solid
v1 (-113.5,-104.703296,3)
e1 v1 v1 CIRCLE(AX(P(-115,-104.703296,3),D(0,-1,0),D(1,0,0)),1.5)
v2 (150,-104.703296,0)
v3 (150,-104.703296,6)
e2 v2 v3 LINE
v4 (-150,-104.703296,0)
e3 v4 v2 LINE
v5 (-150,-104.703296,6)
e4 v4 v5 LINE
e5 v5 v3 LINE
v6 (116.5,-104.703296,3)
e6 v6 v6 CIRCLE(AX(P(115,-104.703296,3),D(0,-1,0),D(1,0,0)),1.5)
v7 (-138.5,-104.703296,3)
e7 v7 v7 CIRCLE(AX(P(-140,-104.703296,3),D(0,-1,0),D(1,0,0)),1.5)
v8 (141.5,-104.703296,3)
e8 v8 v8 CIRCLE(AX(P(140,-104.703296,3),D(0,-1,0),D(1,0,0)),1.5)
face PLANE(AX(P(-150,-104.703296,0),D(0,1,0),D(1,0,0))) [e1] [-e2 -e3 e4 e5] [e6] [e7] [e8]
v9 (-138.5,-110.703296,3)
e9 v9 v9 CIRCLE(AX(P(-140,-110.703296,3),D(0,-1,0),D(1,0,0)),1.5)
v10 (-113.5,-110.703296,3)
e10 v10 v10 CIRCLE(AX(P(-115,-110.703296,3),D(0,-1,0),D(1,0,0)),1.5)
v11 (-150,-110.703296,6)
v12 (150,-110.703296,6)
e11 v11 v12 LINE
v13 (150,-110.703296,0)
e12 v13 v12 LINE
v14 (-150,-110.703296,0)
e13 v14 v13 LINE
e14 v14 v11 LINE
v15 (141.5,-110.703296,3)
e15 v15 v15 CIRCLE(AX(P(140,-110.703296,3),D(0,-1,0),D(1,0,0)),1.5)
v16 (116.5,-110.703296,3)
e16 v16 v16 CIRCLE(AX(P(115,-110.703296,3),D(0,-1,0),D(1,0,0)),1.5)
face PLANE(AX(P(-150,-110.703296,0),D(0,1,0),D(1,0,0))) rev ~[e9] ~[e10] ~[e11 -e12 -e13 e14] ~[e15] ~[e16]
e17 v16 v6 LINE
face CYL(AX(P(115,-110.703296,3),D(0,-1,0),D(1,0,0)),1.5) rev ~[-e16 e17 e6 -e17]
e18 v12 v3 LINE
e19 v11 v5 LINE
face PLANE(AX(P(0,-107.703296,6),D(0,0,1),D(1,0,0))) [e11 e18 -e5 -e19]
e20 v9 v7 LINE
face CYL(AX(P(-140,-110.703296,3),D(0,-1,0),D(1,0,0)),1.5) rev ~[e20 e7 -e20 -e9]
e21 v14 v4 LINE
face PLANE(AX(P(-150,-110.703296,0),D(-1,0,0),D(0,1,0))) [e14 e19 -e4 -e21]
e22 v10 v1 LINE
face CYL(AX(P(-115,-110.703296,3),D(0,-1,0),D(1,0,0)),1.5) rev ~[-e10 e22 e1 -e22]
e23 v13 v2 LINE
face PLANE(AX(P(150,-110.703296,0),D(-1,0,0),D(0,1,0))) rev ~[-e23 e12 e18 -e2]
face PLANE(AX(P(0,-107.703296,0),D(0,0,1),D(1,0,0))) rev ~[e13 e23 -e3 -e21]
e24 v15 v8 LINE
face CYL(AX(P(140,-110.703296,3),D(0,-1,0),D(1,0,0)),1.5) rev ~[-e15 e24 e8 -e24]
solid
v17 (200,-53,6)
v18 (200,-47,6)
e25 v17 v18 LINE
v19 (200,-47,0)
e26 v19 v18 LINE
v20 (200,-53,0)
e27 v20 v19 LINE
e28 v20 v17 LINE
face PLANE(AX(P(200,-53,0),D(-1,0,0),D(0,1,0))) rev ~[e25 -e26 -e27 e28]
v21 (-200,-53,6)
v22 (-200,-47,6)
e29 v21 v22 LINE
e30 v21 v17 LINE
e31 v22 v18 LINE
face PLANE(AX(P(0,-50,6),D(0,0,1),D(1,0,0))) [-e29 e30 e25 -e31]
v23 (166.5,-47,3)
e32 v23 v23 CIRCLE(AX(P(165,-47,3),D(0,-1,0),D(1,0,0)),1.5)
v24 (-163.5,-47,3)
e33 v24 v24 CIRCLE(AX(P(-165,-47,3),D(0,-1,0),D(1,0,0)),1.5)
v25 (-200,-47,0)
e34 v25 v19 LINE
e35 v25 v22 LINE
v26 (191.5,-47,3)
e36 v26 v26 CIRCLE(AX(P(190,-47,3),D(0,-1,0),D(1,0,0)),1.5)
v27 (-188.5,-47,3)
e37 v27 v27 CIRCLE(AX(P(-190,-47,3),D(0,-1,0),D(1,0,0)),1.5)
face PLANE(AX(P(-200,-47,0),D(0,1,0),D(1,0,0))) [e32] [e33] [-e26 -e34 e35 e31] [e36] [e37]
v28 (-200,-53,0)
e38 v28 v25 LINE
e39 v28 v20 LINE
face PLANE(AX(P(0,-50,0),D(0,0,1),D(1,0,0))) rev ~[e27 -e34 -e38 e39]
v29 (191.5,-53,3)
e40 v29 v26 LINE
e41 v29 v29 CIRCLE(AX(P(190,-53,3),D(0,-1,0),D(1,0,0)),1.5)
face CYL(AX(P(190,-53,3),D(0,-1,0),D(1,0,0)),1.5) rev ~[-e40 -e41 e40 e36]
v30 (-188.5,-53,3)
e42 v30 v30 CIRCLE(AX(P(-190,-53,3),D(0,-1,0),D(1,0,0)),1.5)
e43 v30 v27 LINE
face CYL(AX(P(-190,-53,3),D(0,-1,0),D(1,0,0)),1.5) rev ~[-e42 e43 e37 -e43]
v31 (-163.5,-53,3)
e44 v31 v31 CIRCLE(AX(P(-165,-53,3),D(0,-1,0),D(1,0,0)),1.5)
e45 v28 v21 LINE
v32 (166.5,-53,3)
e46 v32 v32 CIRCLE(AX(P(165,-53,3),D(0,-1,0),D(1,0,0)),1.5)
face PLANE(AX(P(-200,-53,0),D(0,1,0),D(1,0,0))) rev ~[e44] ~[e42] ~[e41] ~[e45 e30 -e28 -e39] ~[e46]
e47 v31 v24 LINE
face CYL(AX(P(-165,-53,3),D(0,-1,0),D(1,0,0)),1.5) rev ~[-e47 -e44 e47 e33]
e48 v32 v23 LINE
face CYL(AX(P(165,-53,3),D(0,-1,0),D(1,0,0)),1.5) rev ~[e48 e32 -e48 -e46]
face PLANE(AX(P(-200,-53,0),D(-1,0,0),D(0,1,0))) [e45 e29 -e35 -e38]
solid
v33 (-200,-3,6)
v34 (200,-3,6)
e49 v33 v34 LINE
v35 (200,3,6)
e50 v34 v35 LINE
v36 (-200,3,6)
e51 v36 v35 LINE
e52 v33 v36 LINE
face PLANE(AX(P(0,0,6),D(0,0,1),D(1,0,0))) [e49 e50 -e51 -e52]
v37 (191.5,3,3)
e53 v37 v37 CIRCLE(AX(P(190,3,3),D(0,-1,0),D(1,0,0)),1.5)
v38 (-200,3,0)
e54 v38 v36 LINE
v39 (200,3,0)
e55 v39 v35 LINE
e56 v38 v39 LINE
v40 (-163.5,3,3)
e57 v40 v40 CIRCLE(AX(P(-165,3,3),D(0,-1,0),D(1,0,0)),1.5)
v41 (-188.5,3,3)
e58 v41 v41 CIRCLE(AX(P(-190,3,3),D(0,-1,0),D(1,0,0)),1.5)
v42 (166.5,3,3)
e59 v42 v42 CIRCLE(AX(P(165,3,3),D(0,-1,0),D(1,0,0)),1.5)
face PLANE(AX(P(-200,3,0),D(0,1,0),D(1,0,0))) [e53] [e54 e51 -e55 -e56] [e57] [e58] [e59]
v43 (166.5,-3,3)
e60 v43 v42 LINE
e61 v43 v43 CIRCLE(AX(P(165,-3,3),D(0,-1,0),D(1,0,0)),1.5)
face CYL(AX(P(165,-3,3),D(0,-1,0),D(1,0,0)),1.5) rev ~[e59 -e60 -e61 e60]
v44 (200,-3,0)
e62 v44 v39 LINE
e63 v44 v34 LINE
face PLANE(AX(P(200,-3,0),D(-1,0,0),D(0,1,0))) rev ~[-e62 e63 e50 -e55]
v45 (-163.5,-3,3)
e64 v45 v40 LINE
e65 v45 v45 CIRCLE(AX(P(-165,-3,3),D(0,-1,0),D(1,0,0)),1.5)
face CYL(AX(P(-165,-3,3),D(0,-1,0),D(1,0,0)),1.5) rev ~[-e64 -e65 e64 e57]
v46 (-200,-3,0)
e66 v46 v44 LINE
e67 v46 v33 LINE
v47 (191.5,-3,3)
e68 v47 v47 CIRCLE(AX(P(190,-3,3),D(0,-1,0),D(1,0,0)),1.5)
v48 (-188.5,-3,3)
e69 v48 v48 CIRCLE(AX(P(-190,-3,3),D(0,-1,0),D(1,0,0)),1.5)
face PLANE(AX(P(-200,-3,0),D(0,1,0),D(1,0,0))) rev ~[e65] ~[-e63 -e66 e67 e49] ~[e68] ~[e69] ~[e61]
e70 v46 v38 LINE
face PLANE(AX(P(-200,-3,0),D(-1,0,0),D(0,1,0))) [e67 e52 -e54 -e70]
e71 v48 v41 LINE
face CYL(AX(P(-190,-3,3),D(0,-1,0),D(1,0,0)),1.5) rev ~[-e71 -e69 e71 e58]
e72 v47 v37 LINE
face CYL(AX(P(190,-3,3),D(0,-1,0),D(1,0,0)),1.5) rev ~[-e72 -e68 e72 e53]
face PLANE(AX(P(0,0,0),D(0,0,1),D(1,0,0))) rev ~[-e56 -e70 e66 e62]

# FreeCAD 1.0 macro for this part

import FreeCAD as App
import Part
import Sketcher
from FreeCAD import Vector
Q = App.Units.Quantity


def add_polygon(sketch, points):
    """Adds a closed chain of lines whose ends are joined by coincident constraints."""
    first, n = sketch.GeometryCount, len(points)
    for a, b in zip(points, points[1:] + points[:1]):
        sketch.addGeometry(Part.LineSegment(App.Vector(*a, 0), App.Vector(*b, 0)), False)
    for i in range(n):
        sketch.addConstraint(Sketcher.Constraint("Coincident", first + i, 2, first + (i + 1) % n, 1))

doc = App.newDocument("Part")
body = doc.addObject("PartDesign::Body", "Body")

# Sketch on XY plane
sketch1 = doc.addObject("Sketcher::SketchObject", "Sketch")
body.addObject(sketch1)
sketch1.AttachmentSupport = (doc.XY_Plane, [""])
sketch1.MapMode = "FlatFace"
add_polygon(sketch1, [(-200, 3), (-200, -3), (200, -3), (200, 3)])  # lines 0-3
sketch1.addConstraint(Sketcher.Constraint("Vertical", 0))
sketch1.addConstraint(Sketcher.Constraint("Horizontal", 1))
sketch1.addConstraint(Sketcher.Constraint("Vertical", 2))
sketch1.addConstraint(Sketcher.Constraint("Horizontal", 3))
sketch1.addConstraint(Sketcher.Constraint("Symmetric", 0, 2, 2, 2, -1, 1))
sketch1.addConstraint(Sketcher.Constraint("DistanceX", 1, 1, 1, 2, Q("400 mm")))
sketch1.addConstraint(Sketcher.Constraint("DistanceY", 0, 2, 0, 1, Q("6 mm")))
pad1 = doc.addObject("PartDesign::Pad", "Pad")
body.addObject(pad1)
pad1.Profile = sketch1
pad1.Length = 6

# Sketch on XZ plane
sketch2 = doc.addObject("Sketcher::SketchObject", "Sketch001")
body.addObject(sketch2)
sketch2.AttachmentSupport = (doc.XZ_Plane, [""])
sketch2.MapMode = "FlatFace"
sketch2.AttachmentOffset = App.Placement(Vector(0, 0, 3), App.Rotation())
sketch2.addGeometry(Part.Circle(Vector(190, 3, 0), Vector(0, 0, 1), 1.5), False)
sketch2.addGeometry(Part.Circle(Vector(165, 3, 0), Vector(0, 0, 1), 1.5), False)
sketch2.addGeometry(Part.Circle(Vector(-190, 3, 0), Vector(0, 0, 1), 1.5), False)
sketch2.addGeometry(Part.Circle(Vector(-165, 3, 0), Vector(0, 0, 1), 1.5), False)
sketch2.addConstraint(Sketcher.Constraint("Equal", 0, 1))
sketch2.addConstraint(Sketcher.Constraint("Equal", 1, 2))
sketch2.addConstraint(Sketcher.Constraint("Equal", 2, 3))
sketch2.addConstraint(Sketcher.Constraint("Symmetric", 0, 3, 2, 3, -2))
sketch2.addConstraint(Sketcher.Constraint("Symmetric", 1, 3, 3, 3, -2))
sketch2.addConstraint(Sketcher.Constraint("Horizontal", 0, 3, 1, 3))
sketch2.addConstraint(Sketcher.Constraint("Diameter", 0, Q("3 mm")))
sketch2.addConstraint(Sketcher.Constraint("DistanceX", -1, 1, 0, 3, Q("190 mm")))
sketch2.addConstraint(Sketcher.Constraint("DistanceY", -1, 1, 0, 3, Q("3 mm")))
sketch2.addConstraint(Sketcher.Constraint("DistanceX", -1, 1, 1, 3, Q("165 mm")))
pocket1 = doc.addObject("PartDesign::Pocket", "Pocket")
body.addObject(pocket1)
pocket1.Profile = sketch2
pocket1.Type = "ThroughAll"
body2 = doc.addObject("PartDesign::Body", "Body001")

# Sketch on XY plane
sketch3 = doc.addObject("Sketcher::SketchObject", "Sketch002")
body2.addObject(sketch3)
sketch3.AttachmentSupport = (doc.getObject("XY_Plane001"), [""])
sketch3.MapMode = "FlatFace"
add_polygon(sketch3, [(-200, -47), (-200, -53), (200, -53), (200, -47)])  # lines 0-3
sketch3.addConstraint(Sketcher.Constraint("Vertical", 0))
sketch3.addConstraint(Sketcher.Constraint("Horizontal", 1))
sketch3.addConstraint(Sketcher.Constraint("Vertical", 2))
sketch3.addConstraint(Sketcher.Constraint("Horizontal", 3))
sketch3.addConstraint(Sketcher.Constraint("DistanceX", 1, 1, 1, 2, Q("400 mm")))
sketch3.addConstraint(Sketcher.Constraint("DistanceY", 0, 2, 0, 1, Q("6 mm")))
sketch3.addConstraint(Sketcher.Constraint("DistanceX", 0, 2, -1, 1, Q("200 mm")))
sketch3.addConstraint(Sketcher.Constraint("DistanceY", 0, 2, -1, 1, Q("53 mm")))
pad2 = doc.addObject("PartDesign::Pad", "Pad001")
body2.addObject(pad2)
pad2.Profile = sketch3
pad2.Length = 6

# Sketch on XZ plane
sketch4 = doc.addObject("Sketcher::SketchObject", "Sketch003")
body2.addObject(sketch4)
sketch4.AttachmentSupport = (doc.getObject("XZ_Plane001"), [""])
sketch4.MapMode = "FlatFace"
sketch4.AttachmentOffset = App.Placement(Vector(0, 0, 53), App.Rotation())
sketch4.addGeometry(Part.Circle(Vector(190, 3, 0), Vector(0, 0, 1), 1.5), False)
sketch4.addGeometry(Part.Circle(Vector(165, 3, 0), Vector(0, 0, 1), 1.5), False)
sketch4.addGeometry(Part.Circle(Vector(-190, 3, 0), Vector(0, 0, 1), 1.5), False)
sketch4.addGeometry(Part.Circle(Vector(-165, 3, 0), Vector(0, 0, 1), 1.5), False)
sketch4.addConstraint(Sketcher.Constraint("Equal", 0, 1))
sketch4.addConstraint(Sketcher.Constraint("Equal", 1, 2))
sketch4.addConstraint(Sketcher.Constraint("Equal", 2, 3))
sketch4.addConstraint(Sketcher.Constraint("Symmetric", 0, 3, 2, 3, -2))
sketch4.addConstraint(Sketcher.Constraint("Symmetric", 1, 3, 3, 3, -2))
sketch4.addConstraint(Sketcher.Constraint("Horizontal", 0, 3, 1, 3))
sketch4.addConstraint(Sketcher.Constraint("Diameter", 0, Q("3 mm")))
sketch4.addConstraint(Sketcher.Constraint("DistanceX", -1, 1, 0, 3, Q("190 mm")))
sketch4.addConstraint(Sketcher.Constraint("DistanceY", -1, 1, 0, 3, Q("3 mm")))
sketch4.addConstraint(Sketcher.Constraint("DistanceX", -1, 1, 1, 3, Q("165 mm")))
pocket2 = doc.addObject("PartDesign::Pocket", "Pocket001")
body2.addObject(pocket2)
pocket2.Profile = sketch4
pocket2.Type = "ThroughAll"
body3 = doc.addObject("PartDesign::Body", "Body002")

# Sketch on XY plane
sketch5 = doc.addObject("Sketcher::SketchObject", "Sketch004")
body3.addObject(sketch5)
sketch5.AttachmentSupport = (doc.getObject("XY_Plane002"), [""])
sketch5.MapMode = "FlatFace"
add_polygon(sketch5, [(-150, -104.703296), (-150, -110.703296), (150, -110.703296), (150, -104.703296)])  # lines 0-3
sketch5.addConstraint(Sketcher.Constraint("Vertical", 0))
sketch5.addConstraint(Sketcher.Constraint("Horizontal", 1))
sketch5.addConstraint(Sketcher.Constraint("Vertical", 2))
sketch5.addConstraint(Sketcher.Constraint("Horizontal", 3))
sketch5.addConstraint(Sketcher.Constraint("DistanceX", 1, 1, 1, 2, Q("300 mm")))
sketch5.addConstraint(Sketcher.Constraint("DistanceY", 0, 2, 0, 1, Q("6 mm")))
sketch5.addConstraint(Sketcher.Constraint("DistanceX", 0, 2, -1, 1, Q("150 mm")))
sketch5.addConstraint(Sketcher.Constraint("DistanceY", 0, 2, -1, 1, Q("110.703296 mm")))
pad3 = doc.addObject("PartDesign::Pad", "Pad002")
body3.addObject(pad3)
pad3.Profile = sketch5
pad3.Length = 6

# Sketch on XZ plane
sketch6 = doc.addObject("Sketcher::SketchObject", "Sketch005")
body3.addObject(sketch6)
sketch6.AttachmentSupport = (doc.getObject("XZ_Plane002"), [""])
sketch6.MapMode = "FlatFace"
sketch6.AttachmentOffset = App.Placement(Vector(0, 0, 110.703296), App.Rotation())
sketch6.addGeometry(Part.Circle(Vector(140, 3, 0), Vector(0, 0, 1), 1.5), False)
sketch6.addGeometry(Part.Circle(Vector(115, 3, 0), Vector(0, 0, 1), 1.5), False)
sketch6.addGeometry(Part.Circle(Vector(-115, 3, 0), Vector(0, 0, 1), 1.5), False)
sketch6.addGeometry(Part.Circle(Vector(-140, 3, 0), Vector(0, 0, 1), 1.5), False)
sketch6.addConstraint(Sketcher.Constraint("Equal", 0, 1))
sketch6.addConstraint(Sketcher.Constraint("Equal", 1, 2))
sketch6.addConstraint(Sketcher.Constraint("Equal", 2, 3))
sketch6.addConstraint(Sketcher.Constraint("Symmetric", 1, 3, 2, 3, -2))
sketch6.addConstraint(Sketcher.Constraint("Symmetric", 0, 3, 3, 3, -2))
sketch6.addConstraint(Sketcher.Constraint("Horizontal", 0, 3, 1, 3))
sketch6.addConstraint(Sketcher.Constraint("Diameter", 0, Q("3 mm")))
sketch6.addConstraint(Sketcher.Constraint("DistanceX", -1, 1, 0, 3, Q("140 mm")))
sketch6.addConstraint(Sketcher.Constraint("DistanceY", -1, 1, 0, 3, Q("3 mm")))
sketch6.addConstraint(Sketcher.Constraint("DistanceX", -1, 1, 1, 3, Q("115 mm")))
pocket3 = doc.addObject("PartDesign::Pocket", "Pocket002")
body3.addObject(pocket3)
pocket3.Profile = sketch6
pocket3.Type = "ThroughAll"

doc.recompute()
